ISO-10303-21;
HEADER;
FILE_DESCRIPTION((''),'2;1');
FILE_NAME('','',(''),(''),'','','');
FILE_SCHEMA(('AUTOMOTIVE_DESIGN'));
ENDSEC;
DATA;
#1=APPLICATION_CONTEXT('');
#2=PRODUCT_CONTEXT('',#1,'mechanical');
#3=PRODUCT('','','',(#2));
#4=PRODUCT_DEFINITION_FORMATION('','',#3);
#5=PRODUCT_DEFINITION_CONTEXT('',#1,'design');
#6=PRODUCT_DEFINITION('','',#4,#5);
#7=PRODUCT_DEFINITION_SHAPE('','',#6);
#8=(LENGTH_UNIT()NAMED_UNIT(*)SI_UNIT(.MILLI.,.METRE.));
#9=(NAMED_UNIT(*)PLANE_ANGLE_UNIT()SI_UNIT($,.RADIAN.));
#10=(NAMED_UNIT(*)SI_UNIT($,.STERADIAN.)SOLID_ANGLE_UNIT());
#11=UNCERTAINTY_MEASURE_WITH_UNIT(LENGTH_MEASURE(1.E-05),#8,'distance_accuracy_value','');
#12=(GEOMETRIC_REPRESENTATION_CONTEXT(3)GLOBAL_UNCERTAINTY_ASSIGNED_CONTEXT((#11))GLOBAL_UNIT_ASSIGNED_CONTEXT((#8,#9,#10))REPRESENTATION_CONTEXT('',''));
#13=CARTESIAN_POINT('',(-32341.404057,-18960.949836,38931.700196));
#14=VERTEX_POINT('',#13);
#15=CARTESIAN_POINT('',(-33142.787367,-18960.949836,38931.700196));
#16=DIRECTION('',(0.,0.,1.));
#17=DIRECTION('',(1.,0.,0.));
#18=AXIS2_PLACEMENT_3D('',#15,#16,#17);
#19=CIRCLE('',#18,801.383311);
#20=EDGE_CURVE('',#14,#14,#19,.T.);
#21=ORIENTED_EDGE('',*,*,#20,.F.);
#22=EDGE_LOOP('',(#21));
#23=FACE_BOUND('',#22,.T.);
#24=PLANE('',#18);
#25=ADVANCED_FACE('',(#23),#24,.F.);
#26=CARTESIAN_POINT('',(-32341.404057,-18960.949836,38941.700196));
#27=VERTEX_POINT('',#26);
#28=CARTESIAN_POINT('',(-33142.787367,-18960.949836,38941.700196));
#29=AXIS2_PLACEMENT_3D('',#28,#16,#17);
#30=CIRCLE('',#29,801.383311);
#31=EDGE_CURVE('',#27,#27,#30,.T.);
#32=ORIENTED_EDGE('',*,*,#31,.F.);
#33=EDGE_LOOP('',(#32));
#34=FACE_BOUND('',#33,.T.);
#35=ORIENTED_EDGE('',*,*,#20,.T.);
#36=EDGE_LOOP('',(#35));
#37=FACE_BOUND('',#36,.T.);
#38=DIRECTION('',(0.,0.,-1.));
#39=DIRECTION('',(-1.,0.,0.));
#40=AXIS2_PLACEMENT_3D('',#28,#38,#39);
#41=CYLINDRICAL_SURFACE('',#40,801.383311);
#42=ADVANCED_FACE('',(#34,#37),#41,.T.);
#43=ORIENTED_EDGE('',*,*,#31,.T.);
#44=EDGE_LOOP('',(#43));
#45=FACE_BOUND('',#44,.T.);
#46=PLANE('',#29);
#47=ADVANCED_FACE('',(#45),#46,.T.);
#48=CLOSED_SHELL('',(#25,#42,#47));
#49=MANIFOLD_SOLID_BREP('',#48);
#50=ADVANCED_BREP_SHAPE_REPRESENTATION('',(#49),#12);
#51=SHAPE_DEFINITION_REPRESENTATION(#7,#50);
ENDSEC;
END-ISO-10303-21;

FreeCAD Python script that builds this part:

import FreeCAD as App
import Part
import Sketcher
from FreeCAD import Vector

doc = App.newDocument("Part")
params = doc.addObject("Spreadsheet::Sheet", "Params")
for row, (alias, value) in enumerate([
    ("pad1_length", "10 mm"),
], start=1):
    params.set(f"A{row}", alias)
    params.set(f"B{row}", "=" + value)
    params.setAlias(f"B{row}", alias)

body = doc.addObject("PartDesign::Body", "Body")

sketch1 = body.newObject("Sketcher::SketchObject", "Sketch")
sketch1.AttachmentSupport = (doc.getObject("XY_Plane"), [""])
sketch1.MapMode = "FlatFace"
sketch1.AttachmentOffset = App.Placement(Vector(0, 0, 38931.700196), App.Rotation())
sketch1.addGeometry(Part.Circle(Vector(-33143, -18961, 0), Vector(0, 0, 1), 801), False)
sketch1.addConstraint(Sketcher.Constraint("Diameter", 0, 1602.766621))
sketch1.addConstraint(Sketcher.Constraint("DistanceX", 0, 3, -1, 1, 33142.787367))
sketch1.addConstraint(Sketcher.Constraint("DistanceY", 0, 3, -1, 1, 18960.949836))
pad1 = body.newObject("PartDesign::Pad", "Pad")
pad1.Profile = sketch1
pad1.setExpression("Length", "Params.pad1_length")

doc.recompute()
